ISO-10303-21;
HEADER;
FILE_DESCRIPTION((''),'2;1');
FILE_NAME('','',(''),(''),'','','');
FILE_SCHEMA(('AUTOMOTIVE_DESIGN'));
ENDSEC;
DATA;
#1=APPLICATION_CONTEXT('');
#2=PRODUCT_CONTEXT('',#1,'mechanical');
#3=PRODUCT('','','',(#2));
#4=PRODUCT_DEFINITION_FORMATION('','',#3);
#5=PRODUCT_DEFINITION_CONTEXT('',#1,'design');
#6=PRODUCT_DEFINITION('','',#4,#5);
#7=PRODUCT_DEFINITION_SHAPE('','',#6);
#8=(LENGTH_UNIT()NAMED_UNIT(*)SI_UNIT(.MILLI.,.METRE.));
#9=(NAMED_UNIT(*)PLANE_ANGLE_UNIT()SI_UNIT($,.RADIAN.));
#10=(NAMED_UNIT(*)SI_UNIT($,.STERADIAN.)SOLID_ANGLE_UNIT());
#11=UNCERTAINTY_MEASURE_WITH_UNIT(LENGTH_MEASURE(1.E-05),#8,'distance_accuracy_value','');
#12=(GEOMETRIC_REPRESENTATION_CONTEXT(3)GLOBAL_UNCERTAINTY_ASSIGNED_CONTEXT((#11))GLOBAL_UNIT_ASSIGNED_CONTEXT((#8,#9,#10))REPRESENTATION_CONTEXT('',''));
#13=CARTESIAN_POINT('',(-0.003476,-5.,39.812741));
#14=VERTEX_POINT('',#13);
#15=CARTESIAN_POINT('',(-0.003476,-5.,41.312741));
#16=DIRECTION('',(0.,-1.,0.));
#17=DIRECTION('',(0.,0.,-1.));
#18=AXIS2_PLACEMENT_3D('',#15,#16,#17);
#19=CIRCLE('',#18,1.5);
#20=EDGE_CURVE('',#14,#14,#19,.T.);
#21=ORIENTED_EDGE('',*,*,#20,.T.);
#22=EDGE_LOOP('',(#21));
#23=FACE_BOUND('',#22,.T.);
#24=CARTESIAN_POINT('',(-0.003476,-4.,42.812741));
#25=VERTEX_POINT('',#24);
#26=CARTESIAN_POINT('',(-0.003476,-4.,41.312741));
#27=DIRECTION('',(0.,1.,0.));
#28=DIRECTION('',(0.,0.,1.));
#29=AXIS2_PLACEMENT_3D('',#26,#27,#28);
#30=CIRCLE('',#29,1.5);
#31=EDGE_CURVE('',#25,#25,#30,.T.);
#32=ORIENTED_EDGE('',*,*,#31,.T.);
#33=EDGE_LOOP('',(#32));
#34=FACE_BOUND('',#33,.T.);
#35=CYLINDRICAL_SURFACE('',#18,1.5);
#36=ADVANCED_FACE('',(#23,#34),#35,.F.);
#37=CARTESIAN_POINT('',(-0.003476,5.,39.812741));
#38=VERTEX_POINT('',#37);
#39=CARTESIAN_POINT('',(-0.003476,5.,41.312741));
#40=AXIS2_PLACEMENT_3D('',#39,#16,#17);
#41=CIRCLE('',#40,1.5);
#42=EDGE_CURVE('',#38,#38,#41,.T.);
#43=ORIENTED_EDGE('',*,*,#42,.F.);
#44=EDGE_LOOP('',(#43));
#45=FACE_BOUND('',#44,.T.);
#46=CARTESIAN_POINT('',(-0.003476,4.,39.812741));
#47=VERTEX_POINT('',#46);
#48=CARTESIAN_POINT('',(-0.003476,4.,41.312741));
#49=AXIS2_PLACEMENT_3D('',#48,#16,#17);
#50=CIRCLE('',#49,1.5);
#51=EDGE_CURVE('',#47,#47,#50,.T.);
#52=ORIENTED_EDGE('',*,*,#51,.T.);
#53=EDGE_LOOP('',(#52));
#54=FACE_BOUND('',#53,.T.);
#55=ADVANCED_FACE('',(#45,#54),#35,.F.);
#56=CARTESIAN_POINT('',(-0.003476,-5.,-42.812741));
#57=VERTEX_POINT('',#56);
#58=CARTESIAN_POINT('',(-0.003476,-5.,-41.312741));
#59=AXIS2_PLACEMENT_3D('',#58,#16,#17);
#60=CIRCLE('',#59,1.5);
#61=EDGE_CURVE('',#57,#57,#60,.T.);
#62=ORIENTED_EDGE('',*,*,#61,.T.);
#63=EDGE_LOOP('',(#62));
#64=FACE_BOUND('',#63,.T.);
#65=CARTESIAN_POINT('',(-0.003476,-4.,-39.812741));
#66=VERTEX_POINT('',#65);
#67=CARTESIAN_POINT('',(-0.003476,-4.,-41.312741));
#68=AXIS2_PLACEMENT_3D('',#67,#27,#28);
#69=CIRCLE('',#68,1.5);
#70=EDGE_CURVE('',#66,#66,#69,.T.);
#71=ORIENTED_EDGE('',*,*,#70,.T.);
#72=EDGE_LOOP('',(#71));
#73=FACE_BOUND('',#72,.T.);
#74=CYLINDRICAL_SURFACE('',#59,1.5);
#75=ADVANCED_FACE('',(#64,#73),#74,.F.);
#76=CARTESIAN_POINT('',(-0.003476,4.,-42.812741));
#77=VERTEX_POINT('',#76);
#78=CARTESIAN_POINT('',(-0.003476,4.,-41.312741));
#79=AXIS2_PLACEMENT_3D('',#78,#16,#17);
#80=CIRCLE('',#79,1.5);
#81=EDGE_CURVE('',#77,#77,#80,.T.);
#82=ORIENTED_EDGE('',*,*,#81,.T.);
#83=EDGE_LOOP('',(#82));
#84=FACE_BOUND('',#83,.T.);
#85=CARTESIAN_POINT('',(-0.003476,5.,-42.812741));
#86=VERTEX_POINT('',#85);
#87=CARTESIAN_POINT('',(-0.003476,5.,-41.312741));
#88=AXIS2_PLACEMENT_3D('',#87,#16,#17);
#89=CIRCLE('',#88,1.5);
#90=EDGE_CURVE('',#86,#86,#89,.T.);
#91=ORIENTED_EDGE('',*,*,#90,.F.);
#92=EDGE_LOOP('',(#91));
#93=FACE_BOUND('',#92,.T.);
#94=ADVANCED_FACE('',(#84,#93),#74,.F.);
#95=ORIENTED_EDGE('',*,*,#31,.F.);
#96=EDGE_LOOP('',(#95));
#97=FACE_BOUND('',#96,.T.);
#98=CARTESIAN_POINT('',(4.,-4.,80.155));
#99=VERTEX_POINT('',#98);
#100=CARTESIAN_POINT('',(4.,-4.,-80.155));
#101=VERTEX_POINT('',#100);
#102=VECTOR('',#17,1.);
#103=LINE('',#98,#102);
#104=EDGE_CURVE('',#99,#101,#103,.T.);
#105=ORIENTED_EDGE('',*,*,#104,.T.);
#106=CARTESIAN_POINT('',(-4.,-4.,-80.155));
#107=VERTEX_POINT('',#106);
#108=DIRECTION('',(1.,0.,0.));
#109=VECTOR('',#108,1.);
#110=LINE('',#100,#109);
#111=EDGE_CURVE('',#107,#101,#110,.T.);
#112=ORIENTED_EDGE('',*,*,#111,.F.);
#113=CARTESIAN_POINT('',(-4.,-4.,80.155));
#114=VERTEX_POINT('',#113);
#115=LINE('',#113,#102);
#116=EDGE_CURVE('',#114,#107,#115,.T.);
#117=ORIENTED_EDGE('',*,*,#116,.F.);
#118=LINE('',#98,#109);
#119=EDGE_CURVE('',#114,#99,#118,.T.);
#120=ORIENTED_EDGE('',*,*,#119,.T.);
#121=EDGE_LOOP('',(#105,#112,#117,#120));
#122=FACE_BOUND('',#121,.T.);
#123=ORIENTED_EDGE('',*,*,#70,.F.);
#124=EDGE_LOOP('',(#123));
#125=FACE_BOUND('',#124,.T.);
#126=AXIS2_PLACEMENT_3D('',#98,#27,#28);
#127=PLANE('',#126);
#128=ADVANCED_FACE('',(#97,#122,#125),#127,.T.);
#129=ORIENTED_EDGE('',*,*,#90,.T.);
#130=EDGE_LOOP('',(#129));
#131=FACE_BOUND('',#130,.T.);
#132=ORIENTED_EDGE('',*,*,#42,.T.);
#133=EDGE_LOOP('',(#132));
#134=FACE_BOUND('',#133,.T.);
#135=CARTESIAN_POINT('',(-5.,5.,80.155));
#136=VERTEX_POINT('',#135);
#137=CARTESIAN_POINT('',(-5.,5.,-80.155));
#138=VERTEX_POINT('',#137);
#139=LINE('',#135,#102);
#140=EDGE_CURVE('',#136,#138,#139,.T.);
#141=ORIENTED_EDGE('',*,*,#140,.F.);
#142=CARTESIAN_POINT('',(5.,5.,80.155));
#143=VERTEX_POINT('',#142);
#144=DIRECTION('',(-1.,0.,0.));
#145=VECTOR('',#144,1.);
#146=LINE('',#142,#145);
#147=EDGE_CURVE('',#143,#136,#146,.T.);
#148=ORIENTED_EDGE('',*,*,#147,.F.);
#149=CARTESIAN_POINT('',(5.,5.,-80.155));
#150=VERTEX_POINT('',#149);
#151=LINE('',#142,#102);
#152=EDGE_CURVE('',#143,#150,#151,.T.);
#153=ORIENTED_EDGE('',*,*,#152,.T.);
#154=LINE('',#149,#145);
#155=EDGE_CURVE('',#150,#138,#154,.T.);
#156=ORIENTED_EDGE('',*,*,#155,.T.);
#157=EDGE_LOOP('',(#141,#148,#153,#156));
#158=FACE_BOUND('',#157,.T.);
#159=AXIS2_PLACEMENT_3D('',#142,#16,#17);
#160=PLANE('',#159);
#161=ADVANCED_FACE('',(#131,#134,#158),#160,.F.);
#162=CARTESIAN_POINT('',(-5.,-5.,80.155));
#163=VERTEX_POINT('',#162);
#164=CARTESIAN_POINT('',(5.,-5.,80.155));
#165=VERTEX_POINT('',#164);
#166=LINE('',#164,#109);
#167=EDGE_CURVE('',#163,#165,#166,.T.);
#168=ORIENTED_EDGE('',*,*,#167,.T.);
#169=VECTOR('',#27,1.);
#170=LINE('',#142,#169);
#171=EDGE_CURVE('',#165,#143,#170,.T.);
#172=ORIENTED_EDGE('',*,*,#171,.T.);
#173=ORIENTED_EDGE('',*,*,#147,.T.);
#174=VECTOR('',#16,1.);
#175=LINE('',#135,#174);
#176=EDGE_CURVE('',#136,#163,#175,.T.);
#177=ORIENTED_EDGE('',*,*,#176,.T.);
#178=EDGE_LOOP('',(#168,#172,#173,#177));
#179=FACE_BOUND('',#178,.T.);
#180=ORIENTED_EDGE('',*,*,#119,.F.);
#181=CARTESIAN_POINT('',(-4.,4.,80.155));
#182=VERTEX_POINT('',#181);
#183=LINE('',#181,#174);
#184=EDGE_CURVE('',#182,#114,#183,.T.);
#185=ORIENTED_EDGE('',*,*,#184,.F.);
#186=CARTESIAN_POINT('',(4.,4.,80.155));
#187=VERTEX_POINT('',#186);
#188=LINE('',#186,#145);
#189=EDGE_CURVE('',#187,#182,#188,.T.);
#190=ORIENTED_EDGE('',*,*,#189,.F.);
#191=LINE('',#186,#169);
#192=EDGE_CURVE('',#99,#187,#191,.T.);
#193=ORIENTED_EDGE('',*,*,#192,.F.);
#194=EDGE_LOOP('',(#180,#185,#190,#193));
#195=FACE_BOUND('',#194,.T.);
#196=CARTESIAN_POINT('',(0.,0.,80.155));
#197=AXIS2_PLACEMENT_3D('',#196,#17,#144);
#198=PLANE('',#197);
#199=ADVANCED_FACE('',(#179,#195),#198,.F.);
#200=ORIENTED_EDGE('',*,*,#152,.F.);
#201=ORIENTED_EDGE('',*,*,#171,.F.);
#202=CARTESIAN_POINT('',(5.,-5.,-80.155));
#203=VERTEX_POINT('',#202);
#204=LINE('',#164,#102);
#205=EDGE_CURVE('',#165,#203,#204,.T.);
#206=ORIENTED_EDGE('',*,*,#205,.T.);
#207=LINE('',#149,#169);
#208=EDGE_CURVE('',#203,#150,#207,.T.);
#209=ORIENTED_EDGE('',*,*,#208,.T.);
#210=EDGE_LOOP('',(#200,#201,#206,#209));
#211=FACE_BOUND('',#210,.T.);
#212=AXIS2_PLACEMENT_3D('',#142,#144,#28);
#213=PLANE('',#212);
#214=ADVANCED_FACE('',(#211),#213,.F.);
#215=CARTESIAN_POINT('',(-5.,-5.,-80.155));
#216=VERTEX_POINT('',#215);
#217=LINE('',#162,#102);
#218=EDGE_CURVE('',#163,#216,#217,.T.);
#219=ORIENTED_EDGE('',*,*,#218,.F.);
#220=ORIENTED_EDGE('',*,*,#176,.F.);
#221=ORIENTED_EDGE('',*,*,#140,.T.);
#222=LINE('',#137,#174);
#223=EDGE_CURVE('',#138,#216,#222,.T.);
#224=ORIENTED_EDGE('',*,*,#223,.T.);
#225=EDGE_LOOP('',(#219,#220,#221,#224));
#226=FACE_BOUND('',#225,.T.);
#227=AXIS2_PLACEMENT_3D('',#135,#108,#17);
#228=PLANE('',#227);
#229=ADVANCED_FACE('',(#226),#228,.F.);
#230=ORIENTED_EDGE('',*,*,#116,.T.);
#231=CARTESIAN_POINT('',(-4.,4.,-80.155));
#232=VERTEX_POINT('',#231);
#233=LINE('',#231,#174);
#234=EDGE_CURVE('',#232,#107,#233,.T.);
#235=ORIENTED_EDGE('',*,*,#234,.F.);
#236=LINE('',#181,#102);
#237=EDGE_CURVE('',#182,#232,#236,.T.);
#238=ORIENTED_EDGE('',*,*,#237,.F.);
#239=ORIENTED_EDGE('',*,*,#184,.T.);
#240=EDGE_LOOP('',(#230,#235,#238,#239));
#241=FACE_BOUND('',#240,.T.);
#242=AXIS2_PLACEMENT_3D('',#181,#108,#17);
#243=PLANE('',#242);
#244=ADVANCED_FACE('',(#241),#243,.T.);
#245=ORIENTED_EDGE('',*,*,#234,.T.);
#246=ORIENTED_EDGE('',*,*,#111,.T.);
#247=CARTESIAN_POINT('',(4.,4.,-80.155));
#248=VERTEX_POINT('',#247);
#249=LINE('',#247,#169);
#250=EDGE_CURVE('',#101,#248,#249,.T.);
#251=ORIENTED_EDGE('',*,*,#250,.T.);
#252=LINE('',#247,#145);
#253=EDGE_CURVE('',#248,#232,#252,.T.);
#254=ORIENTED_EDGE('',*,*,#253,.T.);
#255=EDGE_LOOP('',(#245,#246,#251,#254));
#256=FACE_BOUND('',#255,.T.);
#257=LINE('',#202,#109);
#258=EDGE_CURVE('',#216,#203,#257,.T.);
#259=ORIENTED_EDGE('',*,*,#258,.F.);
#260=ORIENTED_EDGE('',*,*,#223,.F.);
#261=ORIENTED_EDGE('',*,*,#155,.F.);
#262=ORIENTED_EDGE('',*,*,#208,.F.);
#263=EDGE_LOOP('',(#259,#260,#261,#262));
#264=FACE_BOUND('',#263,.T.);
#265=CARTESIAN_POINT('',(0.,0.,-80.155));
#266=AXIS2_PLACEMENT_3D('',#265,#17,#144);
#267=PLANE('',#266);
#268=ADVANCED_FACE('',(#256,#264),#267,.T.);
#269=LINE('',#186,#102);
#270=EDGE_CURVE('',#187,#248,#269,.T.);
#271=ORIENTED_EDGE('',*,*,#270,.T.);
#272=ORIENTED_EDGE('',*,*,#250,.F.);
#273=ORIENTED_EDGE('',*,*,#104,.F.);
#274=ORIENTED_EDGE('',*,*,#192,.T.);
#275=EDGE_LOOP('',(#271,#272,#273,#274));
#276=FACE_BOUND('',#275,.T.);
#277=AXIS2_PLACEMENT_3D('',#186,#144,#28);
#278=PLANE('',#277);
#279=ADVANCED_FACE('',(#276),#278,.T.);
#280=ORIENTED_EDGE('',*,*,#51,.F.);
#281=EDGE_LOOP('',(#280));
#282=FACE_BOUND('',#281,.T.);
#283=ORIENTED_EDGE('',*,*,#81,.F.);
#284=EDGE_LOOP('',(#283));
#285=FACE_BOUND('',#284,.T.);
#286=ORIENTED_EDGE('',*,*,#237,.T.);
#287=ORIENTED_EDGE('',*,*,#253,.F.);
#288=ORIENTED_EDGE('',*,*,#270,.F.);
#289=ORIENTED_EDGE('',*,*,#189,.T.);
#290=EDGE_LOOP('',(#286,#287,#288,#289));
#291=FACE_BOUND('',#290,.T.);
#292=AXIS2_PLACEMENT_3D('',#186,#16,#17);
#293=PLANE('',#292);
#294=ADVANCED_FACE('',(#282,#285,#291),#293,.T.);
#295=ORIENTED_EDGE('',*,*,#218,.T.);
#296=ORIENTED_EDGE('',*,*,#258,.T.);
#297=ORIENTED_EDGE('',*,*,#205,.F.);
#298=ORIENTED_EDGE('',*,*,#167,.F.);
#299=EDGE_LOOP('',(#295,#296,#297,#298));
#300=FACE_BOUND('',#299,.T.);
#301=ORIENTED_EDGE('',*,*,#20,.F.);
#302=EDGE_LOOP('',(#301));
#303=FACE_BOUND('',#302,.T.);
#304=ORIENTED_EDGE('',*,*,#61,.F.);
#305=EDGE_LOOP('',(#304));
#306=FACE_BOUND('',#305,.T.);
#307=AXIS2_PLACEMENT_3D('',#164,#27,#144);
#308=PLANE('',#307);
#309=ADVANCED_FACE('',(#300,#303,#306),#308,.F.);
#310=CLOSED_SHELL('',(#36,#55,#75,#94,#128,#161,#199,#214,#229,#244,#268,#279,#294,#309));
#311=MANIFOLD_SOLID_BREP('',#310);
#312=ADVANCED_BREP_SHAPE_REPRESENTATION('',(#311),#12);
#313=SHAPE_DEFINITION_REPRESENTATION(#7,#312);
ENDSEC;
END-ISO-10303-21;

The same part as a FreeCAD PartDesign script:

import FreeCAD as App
import Part
import Sketcher

V = App.Vector
Q = App.Units.Quantity


def add_polygon(sketch, points):
    """Adds a closed chain of lines whose ends are joined by coincident constraints."""
    first, n = sketch.GeometryCount, len(points)
    for a, b in zip(points, points[1:] + points[:1]):
        sketch.addGeometry(Part.LineSegment(App.Vector(*a, 0), App.Vector(*b, 0)), False)
    for i in range(n):
        sketch.addConstraint(Sketcher.Constraint("Coincident", first + i, 2, first + (i + 1) % n, 1))

doc = App.newDocument("Part")
body = doc.addObject("PartDesign::Body", "Body")

# Sketch on XY plane
sketch1 = doc.addObject("Sketcher::SketchObject", "Sketch")
body.addObject(sketch1)
sketch1.AttachmentSupport = (doc.XY_Plane, [""])
sketch1.MapMode = "FlatFace"
add_polygon(sketch1, [(-5, 5), (-5, -5), (5, -5), (5, 5)])  # lines 0-3
add_polygon(sketch1, [(4, -4), (-4, -4), (-4, 4), (4, 4)])  # lines 4-7
sketch1.addConstraint([
    Sketcher.Constraint("Vertical", 0),
    Sketcher.Constraint("Horizontal", 1),
    Sketcher.Constraint("Vertical", 2),
    Sketcher.Constraint("Horizontal", 3),
    Sketcher.Constraint("Horizontal", 4),
    Sketcher.Constraint("Vertical", 5),
    Sketcher.Constraint("Horizontal", 6),
    Sketcher.Constraint("Vertical", 7),
    Sketcher.Constraint("Symmetric", 0, 2, 2, 2, -1, 1),
    Sketcher.Constraint("Symmetric", 4, 2, 6, 2, -1, 1),
    Sketcher.Constraint("Equal", 3, 0),
    Sketcher.Constraint("Equal", 6, 5),
    Sketcher.Constraint("DistanceX", 1, 1, 1, 2, Q("10 mm")),
    Sketcher.Constraint("DistanceX", 4, 2, 4, 1, Q("8 mm")),
])
pad1 = doc.addObject("PartDesign::Pad", "Pad")
body.addObject(pad1)
pad1.Profile = sketch1
pad1.Length = 160.31
pad1.Midplane = True

# Sketch on XZ plane
sketch2 = doc.addObject("Sketcher::SketchObject", "Sketch001")
body.addObject(sketch2)
sketch2.AttachmentSupport = (doc.XZ_Plane, [""])
sketch2.MapMode = "FlatFace"
sketch2.AttachmentOffset = App.Placement(V(0, 0, 5), App.Rotation())
sketch2.addGeometry([
    Part.Circle(V(-0.003476, 41.312741, 0), V(0, 0, 1), 1.5),
    Part.Circle(V(-0.003476, -41.312741, 0), V(0, 0, 1), 1.5),
], False)
sketch2.addConstraint([
    Sketcher.Constraint("Equal", 0, 1),
    Sketcher.Constraint("Symmetric", 0, 3, 1, 3, -1),
    Sketcher.Constraint("Diameter", 0, Q("3 mm")),
    Sketcher.Constraint("DistanceY", -1, 1, 0, 3, Q("41.312741 mm")),
    Sketcher.Constraint("DistanceX", 0, 3, -1, 1, Q("0.003476 mm")),
])
doc.recompute()
hole = doc.addObject("PartDesign::Hole", "Hole")
body.addObject(hole)
hole.Profile = sketch2
hole.ThreadType = "None"
hole.Diameter = 3
hole.DepthType = "ThroughAll"

doc.recompute()
